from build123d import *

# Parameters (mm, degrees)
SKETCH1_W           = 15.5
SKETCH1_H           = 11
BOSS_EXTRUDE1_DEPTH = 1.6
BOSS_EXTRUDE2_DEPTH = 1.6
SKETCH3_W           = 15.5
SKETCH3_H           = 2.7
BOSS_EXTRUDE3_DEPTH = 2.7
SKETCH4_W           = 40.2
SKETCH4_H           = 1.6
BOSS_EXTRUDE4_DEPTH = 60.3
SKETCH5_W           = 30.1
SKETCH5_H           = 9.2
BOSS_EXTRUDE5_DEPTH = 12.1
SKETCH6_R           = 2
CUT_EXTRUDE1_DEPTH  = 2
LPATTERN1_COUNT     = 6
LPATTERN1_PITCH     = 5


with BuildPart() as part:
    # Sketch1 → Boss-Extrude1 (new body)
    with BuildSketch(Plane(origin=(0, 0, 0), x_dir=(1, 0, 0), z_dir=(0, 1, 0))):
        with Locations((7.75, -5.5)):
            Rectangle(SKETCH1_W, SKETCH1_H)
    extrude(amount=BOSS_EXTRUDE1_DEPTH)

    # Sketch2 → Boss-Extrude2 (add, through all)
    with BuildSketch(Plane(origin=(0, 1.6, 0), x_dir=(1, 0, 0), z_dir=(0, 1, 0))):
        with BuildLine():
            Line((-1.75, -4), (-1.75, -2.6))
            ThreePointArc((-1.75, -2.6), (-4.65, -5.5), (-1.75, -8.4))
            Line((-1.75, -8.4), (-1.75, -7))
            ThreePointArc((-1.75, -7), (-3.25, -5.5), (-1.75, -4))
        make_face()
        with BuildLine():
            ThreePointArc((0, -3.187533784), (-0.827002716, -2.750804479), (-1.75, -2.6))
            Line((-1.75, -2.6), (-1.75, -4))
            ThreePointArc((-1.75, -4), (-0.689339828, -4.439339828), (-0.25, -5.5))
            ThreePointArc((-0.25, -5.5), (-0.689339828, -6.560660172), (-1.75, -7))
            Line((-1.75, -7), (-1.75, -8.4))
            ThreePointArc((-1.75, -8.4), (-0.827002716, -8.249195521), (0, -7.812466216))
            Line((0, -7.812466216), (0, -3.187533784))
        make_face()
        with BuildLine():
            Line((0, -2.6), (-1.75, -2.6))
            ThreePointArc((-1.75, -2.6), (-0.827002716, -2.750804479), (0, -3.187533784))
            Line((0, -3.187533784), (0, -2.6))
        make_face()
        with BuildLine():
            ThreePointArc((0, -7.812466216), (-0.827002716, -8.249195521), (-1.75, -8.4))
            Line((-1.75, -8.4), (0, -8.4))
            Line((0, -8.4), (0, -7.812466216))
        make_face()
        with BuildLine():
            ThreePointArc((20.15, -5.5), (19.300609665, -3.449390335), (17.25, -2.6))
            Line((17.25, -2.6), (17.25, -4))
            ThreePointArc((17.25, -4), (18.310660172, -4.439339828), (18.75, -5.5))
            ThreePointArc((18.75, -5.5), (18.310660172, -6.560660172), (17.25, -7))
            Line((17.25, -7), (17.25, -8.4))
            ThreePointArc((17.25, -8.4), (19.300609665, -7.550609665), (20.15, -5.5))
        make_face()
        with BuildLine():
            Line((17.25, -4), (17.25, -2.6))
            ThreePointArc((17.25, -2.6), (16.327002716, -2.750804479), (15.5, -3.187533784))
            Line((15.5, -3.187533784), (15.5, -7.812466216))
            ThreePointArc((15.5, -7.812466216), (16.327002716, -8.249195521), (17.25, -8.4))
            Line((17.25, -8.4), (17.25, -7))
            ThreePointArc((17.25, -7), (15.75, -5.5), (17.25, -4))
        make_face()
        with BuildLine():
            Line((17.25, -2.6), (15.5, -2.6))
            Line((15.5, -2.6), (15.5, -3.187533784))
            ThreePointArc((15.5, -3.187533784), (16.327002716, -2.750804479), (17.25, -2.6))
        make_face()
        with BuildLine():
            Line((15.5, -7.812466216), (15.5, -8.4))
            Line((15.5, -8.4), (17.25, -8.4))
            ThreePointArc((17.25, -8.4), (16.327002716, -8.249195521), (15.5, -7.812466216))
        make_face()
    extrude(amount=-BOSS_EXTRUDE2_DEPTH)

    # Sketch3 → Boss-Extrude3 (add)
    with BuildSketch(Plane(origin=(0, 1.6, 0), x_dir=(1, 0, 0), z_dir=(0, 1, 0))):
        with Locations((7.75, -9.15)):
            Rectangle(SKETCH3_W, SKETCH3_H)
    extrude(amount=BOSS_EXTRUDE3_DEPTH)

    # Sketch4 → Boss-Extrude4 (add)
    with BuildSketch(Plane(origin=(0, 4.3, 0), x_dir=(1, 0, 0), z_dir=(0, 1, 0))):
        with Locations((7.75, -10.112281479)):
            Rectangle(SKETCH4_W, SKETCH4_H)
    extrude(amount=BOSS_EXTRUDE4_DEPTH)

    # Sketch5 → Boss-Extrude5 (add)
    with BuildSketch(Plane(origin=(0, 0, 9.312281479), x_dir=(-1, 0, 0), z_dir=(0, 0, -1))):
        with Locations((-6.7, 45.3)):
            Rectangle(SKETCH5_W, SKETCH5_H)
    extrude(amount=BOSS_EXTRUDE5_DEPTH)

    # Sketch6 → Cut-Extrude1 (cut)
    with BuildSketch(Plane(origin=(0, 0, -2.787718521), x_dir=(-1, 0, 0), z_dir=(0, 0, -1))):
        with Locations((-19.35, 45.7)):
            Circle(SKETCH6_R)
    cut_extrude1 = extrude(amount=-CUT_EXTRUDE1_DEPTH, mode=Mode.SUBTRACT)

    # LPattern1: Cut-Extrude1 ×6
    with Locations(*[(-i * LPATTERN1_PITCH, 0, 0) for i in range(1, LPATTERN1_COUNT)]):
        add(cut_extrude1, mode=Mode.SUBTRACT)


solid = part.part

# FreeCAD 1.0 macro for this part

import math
import FreeCAD as App
import Part
import Sketcher


def add_polygon(sketch, points):
    """Adds a closed chain of lines whose ends are joined by coincident constraints."""
    first, n = sketch.GeometryCount, len(points)
    for a, b in zip(points, points[1:] + points[:1]):
        sketch.addGeometry(Part.LineSegment(App.Vector(*a, 0), App.Vector(*b, 0)), False)
    for i in range(n):
        sketch.addConstraint(Sketcher.Constraint("Coincident", first + i, 2, first + (i + 1) % n, 1))

doc = App.newDocument("Part")
body = doc.addObject("PartDesign::Body", "Body")

sketch1 = body.newObject("Sketcher::SketchObject", "Sketch")
sketch1.AttachmentSupport = (doc.getObject("XZ_Plane"), [""])
sketch1.MapMode = "FlatFace"
add_polygon(sketch1, [(0, 0), (0, 11), (15.5, 11), (15.5, 0)])
sketch1.addConstraint([
    Sketcher.Constraint("Vertical", 0),
    Sketcher.Constraint("Horizontal", 1),
    Sketcher.Constraint("Vertical", 2),
    Sketcher.Constraint("Horizontal", 3),
    Sketcher.Constraint("Coincident", 3, 2, -1, 1),
    Sketcher.Constraint("DistanceY", 0, 1, 0, 2, 11.0),
    Sketcher.Constraint("DistanceX", 1, 1, 1, 2, 15.5),
])
pad1 = body.newObject("PartDesign::Pad", "Pad")
pad1.Profile = sketch1
pad1.Length = 1.6
pad1.Reversed = True

sketch2 = body.newObject("Sketcher::SketchObject", "Sketch001")
sketch2.AttachmentSupport = (doc.getObject("XZ_Plane"), [""])
sketch2.MapMode = "FlatFace"
sketch2.AttachmentOffset = App.Placement(App.Vector(0, 0, -1.6), App.Rotation())
sketch2.addGeometry([
    Part.ArcOfCircle(Part.Circle(App.Vector(-1.75, 5.5, 0), App.Vector(0, 0, 1), 2.9), math.radians(90), math.radians(270)),
    Part.LineSegment(App.Vector(-1.75, 8.4, 0), App.Vector(0, 8.4, 0)),
    Part.LineSegment(App.Vector(0, 8.4, 0), App.Vector(0, 2.6, 0)),
    Part.LineSegment(App.Vector(0, 2.6, 0), App.Vector(-1.75, 2.6, 0)),
    Part.ArcOfCircle(Part.Circle(App.Vector(-1.75, 5.5, 0), App.Vector(0, 0, 1), 1.5), math.radians(90), math.radians(270)),
    Part.ArcOfCircle(Part.Circle(App.Vector(-1.75, 5.5, 0), App.Vector(0, 0, 1), 1.5), math.radians(-90), math.radians(0)),
    Part.ArcOfCircle(Part.Circle(App.Vector(-1.75, 5.5, 0), App.Vector(0, 0, 1), 1.5), math.radians(0), math.radians(90)),
    Part.ArcOfCircle(Part.Circle(App.Vector(17.25, 5.5, 0), App.Vector(0, 0, 1), 2.9), math.radians(-90), math.radians(0)),
    Part.LineSegment(App.Vector(17.25, 2.6, 0), App.Vector(15.5, 2.6, 0)),
    Part.LineSegment(App.Vector(15.5, 2.6, 0), App.Vector(15.5, 8.4, 0)),
    Part.LineSegment(App.Vector(15.5, 8.4, 0), App.Vector(17.25, 8.4, 0)),
    Part.ArcOfCircle(Part.Circle(App.Vector(17.25, 5.5, 0), App.Vector(0, 0, 1), 2.9), math.radians(0), math.radians(90)),
    Part.ArcOfCircle(Part.Circle(App.Vector(17.25, 5.5, 0), App.Vector(0, 0, 1), 1.5), math.radians(-90), math.radians(0)),
    Part.ArcOfCircle(Part.Circle(App.Vector(17.25, 5.5, 0), App.Vector(0, 0, 1), 1.5), math.radians(0), math.radians(90)),
    Part.ArcOfCircle(Part.Circle(App.Vector(17.25, 5.5, 0), App.Vector(0, 0, 1), 1.5), math.radians(90), math.radians(270)),
], False)
sketch2.addConstraint([
    Sketcher.Constraint("Tangent", 0, 1, 1, 1),
    Sketcher.Constraint("Coincident", 1, 2, 2, 1),
    Sketcher.Constraint("Coincident", 2, 2, 3, 1),
    Sketcher.Constraint("Tangent", 3, 2, 0, 2),
    Sketcher.Constraint("Tangent", 4, 2, 5, 1),
    Sketcher.Constraint("Tangent", 5, 2, 6, 1),
    Sketcher.Constraint("Tangent", 6, 2, 4, 1),
    Sketcher.Constraint("Tangent", 7, 1, 8, 1),
    Sketcher.Constraint("Coincident", 8, 2, 9, 1),
    Sketcher.Constraint("Coincident", 9, 2, 10, 1),
    Sketcher.Constraint("Tangent", 10, 2, 11, 2),
    Sketcher.Constraint("Tangent", 11, 1, 7, 2),
    Sketcher.Constraint("Tangent", 12, 2, 13, 1),
    Sketcher.Constraint("Tangent", 13, 2, 14, 1),
    Sketcher.Constraint("Tangent", 14, 2, 12, 1),
    Sketcher.Constraint("Horizontal", 1),
    Sketcher.Constraint("Vertical", 2),
    Sketcher.Constraint("Horizontal", 3),
    Sketcher.Constraint("Horizontal", 8),
    Sketcher.Constraint("Vertical", 9),
    Sketcher.Constraint("Horizontal", 10),
    Sketcher.Constraint("Coincident", 4, 3, 0, 3),
    Sketcher.Constraint("Coincident", 12, 3, 7, 3),
    Sketcher.Constraint("Equal", 0, 7),
    Sketcher.Constraint("Equal", 7, 11),
    Sketcher.Constraint("Equal", 6, 12),
    Sketcher.Constraint("PointOnObject", 1, 2, -2),
    Sketcher.Constraint("Horizontal", 6, 3, 7, 3),
    Sketcher.Constraint("Horizontal", 14, 3, 5, 2),
    Sketcher.Constraint("Horizontal", 5, 2, 11, 1),
    Sketcher.Constraint("Horizontal", 11, 1, 12, 2),
    Sketcher.Constraint("Vertical", 3, 2, 4, 2),
    Sketcher.Constraint("Vertical", 4, 2, 6, 2),
    Sketcher.Constraint("Vertical", 10, 2, 13, 2),
    Sketcher.Constraint("Vertical", 13, 2, 14, 2),
    Sketcher.Constraint("Equal", 3, 8),
    Sketcher.Constraint("Radius", 0, 2.9),
    Sketcher.Constraint("Radius", 4, 1.5),
    Sketcher.Constraint("DistanceY", -1, 1, 4, 2, 4.0),
    Sketcher.Constraint("DistanceX", 5, 3, 7, 3, 19.0),
    Sketcher.Constraint("DistanceX", 1, 1, 1, 2, 1.75),
])
pad2 = body.newObject("PartDesign::Pad", "Pad001")
pad2.Profile = sketch2
pad2.Type = "UpToLast"

sketch3 = body.newObject("Sketcher::SketchObject", "Sketch002")
sketch3.AttachmentSupport = (doc.getObject("XZ_Plane"), [""])
sketch3.MapMode = "FlatFace"
sketch3.AttachmentOffset = App.Placement(App.Vector(0, 0, -1.6), App.Rotation())
add_polygon(sketch3, [(0, 7.8), (0, 10.5), (15.5, 10.5), (15.5, 7.8)])
sketch3.addConstraint([
    Sketcher.Constraint("Vertical", 0),
    Sketcher.Constraint("Horizontal", 1),
    Sketcher.Constraint("Vertical", 2),
    Sketcher.Constraint("Horizontal", 3),
    Sketcher.Constraint("PointOnObject", 0, 2, -2),
    Sketcher.Constraint("DistanceX", 1, 1, 1, 2, 15.5),
    Sketcher.Constraint("DistanceY", 0, 1, 0, 2, 2.7),
    Sketcher.Constraint("DistanceY", -1, 1, 0, 2, 10.5),
])
pad3 = body.newObject("PartDesign::Pad", "Pad002")
pad3.Profile = sketch3
pad3.Length = 2.7
pad3.Reversed = True

sketch4 = body.newObject("Sketcher::SketchObject", "Sketch003")
sketch4.AttachmentSupport = (doc.getObject("XZ_Plane"), [""])
sketch4.MapMode = "FlatFace"
sketch4.AttachmentOffset = App.Placement(App.Vector(0, 0, -4.3), App.Rotation())
add_polygon(sketch4, [(-12.35, 9.312281), (-12.35, 10.912281), (27.85, 10.912281), (27.85, 9.312281)])
sketch4.addConstraint([
    Sketcher.Constraint("Vertical", 0),
    Sketcher.Constraint("Horizontal", 1),
    Sketcher.Constraint("Vertical", 2),
    Sketcher.Constraint("Horizontal", 3),
    Sketcher.Constraint("DistanceX", 1, 1, 1, 2, 40.2),
    Sketcher.Constraint("DistanceY", 0, 1, 0, 2, 1.6),
    Sketcher.Constraint("DistanceX", 0, 2, -1, 1, 12.35),
    Sketcher.Constraint("DistanceY", -1, 1, 0, 2, 10.912281),
])
pad4 = body.newObject("PartDesign::Pad", "Pad003")
pad4.Profile = sketch4
pad4.Length = 60.3
pad4.Reversed = True

sketch5 = body.newObject("Sketcher::SketchObject", "Sketch004")
sketch5.AttachmentSupport = (doc.getObject("XY_Plane"), [""])
sketch5.MapMode = "FlatFace"
sketch5.AttachmentOffset = App.Placement(App.Vector(0, 0, 9.312281), App.Rotation())
add_polygon(sketch5, [(21.75, 49.9), (21.75, 40.7), (-8.35, 40.7), (-8.35, 49.9)])
sketch5.addConstraint([
    Sketcher.Constraint("Vertical", 0),
    Sketcher.Constraint("Horizontal", 1),
    Sketcher.Constraint("Vertical", 2),
    Sketcher.Constraint("Horizontal", 3),
    Sketcher.Constraint("DistanceX", 1, 2, 1, 1, 30.1),
    Sketcher.Constraint("DistanceY", 0, 2, 0, 1, 9.2),
    Sketcher.Constraint("DistanceY", -1, 1, 0, 2, 40.7),
    Sketcher.Constraint("DistanceX", -1, 1, 0, 2, 21.75),
])
pad5 = body.newObject("PartDesign::Pad", "Pad004")
pad5.Profile = sketch5
pad5.Length = 12.1
pad5.Reversed = True

sketch6 = body.newObject("Sketcher::SketchObject", "Sketch005")
sketch6.AttachmentSupport = (doc.getObject("XY_Plane"), [""])
sketch6.MapMode = "FlatFace"
sketch6.AttachmentOffset = App.Placement(App.Vector(0, 0, -2.787719), App.Rotation())
sketch6.addGeometry(Part.Circle(App.Vector(19.35, 45.7, 0), App.Vector(0, 0, 1), 2), False)
sketch6.addConstraint([
    Sketcher.Constraint("Diameter", 0, 4.0),
    Sketcher.Constraint("DistanceY", -1, 1, 0, 3, 45.7),
    Sketcher.Constraint("DistanceX", -1, 1, 0, 3, 19.35),
])
pocket1 = body.newObject("PartDesign::Pocket", "Pocket")
pocket1.Profile = sketch6
pocket1.Length = 2
pocket1.Reversed = True
doc.recompute()

linearpattern = body.newObject("PartDesign::LinearPattern", "LinearPattern")
linearpattern.Originals = [pocket1]
linearpattern.Direction = (doc.getObject("X_Axis"), [""])
linearpattern.Mode = "offset"
linearpattern.Offset = 5
linearpattern.Occurrences = 6
linearpattern.Reversed = True
body.Tip = linearpattern

doc.recompute()
